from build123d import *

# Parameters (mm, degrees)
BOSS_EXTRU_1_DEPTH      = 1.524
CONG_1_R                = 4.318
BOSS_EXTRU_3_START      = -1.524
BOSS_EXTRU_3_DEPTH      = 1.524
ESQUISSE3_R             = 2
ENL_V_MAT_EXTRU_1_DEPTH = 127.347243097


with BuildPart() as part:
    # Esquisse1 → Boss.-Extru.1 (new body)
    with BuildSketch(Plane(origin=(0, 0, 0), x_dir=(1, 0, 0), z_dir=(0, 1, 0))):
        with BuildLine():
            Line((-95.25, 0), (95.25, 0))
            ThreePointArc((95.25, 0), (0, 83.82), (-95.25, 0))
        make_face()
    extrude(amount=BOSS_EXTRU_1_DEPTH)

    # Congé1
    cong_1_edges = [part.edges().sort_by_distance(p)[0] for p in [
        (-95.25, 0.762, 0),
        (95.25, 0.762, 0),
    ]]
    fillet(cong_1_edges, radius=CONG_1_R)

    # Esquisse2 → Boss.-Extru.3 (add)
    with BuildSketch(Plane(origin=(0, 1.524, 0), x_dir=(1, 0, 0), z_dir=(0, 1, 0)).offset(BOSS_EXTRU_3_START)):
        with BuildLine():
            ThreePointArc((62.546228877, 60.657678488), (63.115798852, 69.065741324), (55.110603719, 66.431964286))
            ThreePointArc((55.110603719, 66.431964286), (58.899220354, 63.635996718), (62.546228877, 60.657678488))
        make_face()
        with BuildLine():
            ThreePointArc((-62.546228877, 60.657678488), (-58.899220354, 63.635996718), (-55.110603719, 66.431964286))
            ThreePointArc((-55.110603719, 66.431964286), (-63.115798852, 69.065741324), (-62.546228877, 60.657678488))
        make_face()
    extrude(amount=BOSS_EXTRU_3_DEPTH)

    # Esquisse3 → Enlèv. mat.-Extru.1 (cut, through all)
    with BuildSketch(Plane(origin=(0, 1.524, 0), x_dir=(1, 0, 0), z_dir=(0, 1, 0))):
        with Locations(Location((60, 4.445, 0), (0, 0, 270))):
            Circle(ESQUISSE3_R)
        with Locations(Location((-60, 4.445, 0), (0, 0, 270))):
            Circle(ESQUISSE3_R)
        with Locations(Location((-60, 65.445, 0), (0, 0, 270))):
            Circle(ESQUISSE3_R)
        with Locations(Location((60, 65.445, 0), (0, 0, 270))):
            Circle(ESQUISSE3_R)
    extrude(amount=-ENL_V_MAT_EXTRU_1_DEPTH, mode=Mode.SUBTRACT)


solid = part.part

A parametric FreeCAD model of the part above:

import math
import FreeCAD as App
import Part
import Sketcher

V = App.Vector
Q = App.Units.Quantity


def edges_at(feature, points):
    """Names of the edges that pass closest to the given points."""
    edges = feature.Shape.Edges
    near = lambda p: min(range(len(edges)), key=lambda i: edges[i].distToShape(Part.Vertex(*p))[0])
    return sorted({f"Edge{near(p) + 1}" for p in points})

doc = App.newDocument("Part")
body = doc.addObject("PartDesign::Body", "Body")

# Sketch on XZ plane
sketch1 = doc.addObject("Sketcher::SketchObject", "Sketch")
body.addObject(sketch1)
sketch1.AttachmentSupport = (doc.XZ_Plane, [""])
sketch1.MapMode = "FlatFace"
sketch1.addGeometry([
    Part.LineSegment(V(-95.25, 0, 0), V(95.25, 0, 0)),
    Part.ArcOfCircle(Part.Circle(V(0, 12.209318, 0), V(0, 0, 1), 96.029318), math.radians(-172.695554), math.radians(-7.304446)),
], False)
sketch1.addConstraint([
    Sketcher.Constraint("Coincident", 0, 1, 1, 1),
    Sketcher.Constraint("Coincident", 1, 2, 0, 2),
    Sketcher.Constraint("Horizontal", 0),
    Sketcher.Constraint("Symmetric", 0, 1, 1, 2, -1, 1),
    Sketcher.Constraint("DistanceX", 0, 1, 0, 2, Q("7.5 in")),
    Sketcher.Constraint("Radius", 1, 96.029318),
])
pad1 = doc.addObject("PartDesign::Pad", "Pad")
body.addObject(pad1)
pad1.Profile = sketch1
pad1.Length = Q("0.06 in")
pad1.Reversed = True
doc.recompute()

fillet = doc.addObject("PartDesign::Fillet", "Fillet")
body.addObject(fillet)
fillet.Base = (pad1, edges_at(pad1, [(-95.25, 0.762, 0), (95.25, 0.762, 0)]))
fillet.Radius = Q("0.17 in")

# Sketch on XZ plane
sketch2 = doc.addObject("Sketcher::SketchObject", "Sketch001")
body.addObject(sketch2)
sketch2.AttachmentSupport = (doc.XZ_Plane, [""])
sketch2.MapMode = "FlatFace"
sketch2.addGeometry([
    Part.ArcOfCircle(Part.Circle(V(60, -65.053485, 0), V(0, 0, 1), 5.08), math.radians(-164.25514), math.radians(59.918845)),
    Part.ArcOfCircle(Part.Circle(V(0, 12.209318, 0), V(0, 0, 1), 96.029318), math.radians(-54.977818), math.radians(-49.358477)),
    Part.ArcOfCircle(Part.Circle(V(0, 12.209318, 0), V(0, 0, 1), 96.029318), math.radians(-130.641523), math.radians(-125.022182)),
    Part.ArcOfCircle(Part.Circle(V(-60, -65.053485, 0), V(0, 0, 1), 5.08), math.radians(120.081155), math.radians(344.25514)),
], False)
sketch2.addConstraint([
    Sketcher.Constraint("Coincident", 0, 1, 1, 1),
    Sketcher.Constraint("Coincident", 1, 2, 0, 2),
    Sketcher.Constraint("Coincident", 2, 1, 3, 1),
    Sketcher.Constraint("Coincident", 3, 2, 2, 2),
    Sketcher.Constraint("Coincident", 2, 3, 1, 3),
    Sketcher.Constraint("Equal", 1, 2),
    Sketcher.Constraint("Equal", 0, 3),
    Sketcher.Constraint("Symmetric", 0, 3, 3, 3, -2),
    Sketcher.Constraint("PointOnObject", 1, 3, -2),
    Sketcher.Constraint("Radius", 0, Q("0.2 in")),
    Sketcher.Constraint("Radius", 1, 96.029318),
    Sketcher.Constraint("DistanceX", -1, 1, 0, 3, 60.0),
    Sketcher.Constraint("DistanceX", -1, 1, 1, 2, 62.546229),
    Sketcher.Constraint("DistanceY", 1, 2, -1, 1, 60.657678),
])
pad2 = doc.addObject("PartDesign::Pad", "Pad001")
body.addObject(pad2)
pad2.Profile = sketch2
pad2.Length = Q("0.06 in")
pad2.Reversed = True

# Sketch on XZ plane
sketch3 = doc.addObject("Sketcher::SketchObject", "Sketch002")
body.addObject(sketch3)
sketch3.AttachmentSupport = (doc.XZ_Plane, [""])
sketch3.MapMode = "FlatFace"
sketch3.AttachmentOffset = App.Placement(V(0, 0, -0.06 * 25.4), App.Rotation())
sketch3.addGeometry([
    Part.Circle(V(60, -4.445, 0), V(0, 0, 1), 2),
    Part.Circle(V(-60, -4.445, 0), V(0, 0, 1), 2),
    Part.Circle(V(-60, -65.445, 0), V(0, 0, 1), 2),
    Part.Circle(V(60, -65.445, 0), V(0, 0, 1), 2),
], False)
sketch3.addConstraint([
    Sketcher.Constraint("Equal", 0, 1),
    Sketcher.Constraint("Equal", 1, 2),
    Sketcher.Constraint("Equal", 2, 3),
    Sketcher.Constraint("Symmetric", 0, 3, 1, 3, -2),
    Sketcher.Constraint("Symmetric", 2, 3, 3, 3, -2),
    Sketcher.Constraint("Vertical", 1, 3, 2, 3),
    Sketcher.Constraint("Diameter", 0, 4.0),
    Sketcher.Constraint("DistanceY", 0, 3, -1, 1, Q("0.175 in")),
    Sketcher.Constraint("DistanceX", -1, 1, 0, 3, 60.0),
    Sketcher.Constraint("DistanceY", 2, 3, -1, 1, 65.445),
])
pocket1 = doc.addObject("PartDesign::Pocket", "Pocket")
body.addObject(pocket1)
pocket1.Profile = sketch3
pocket1.Type = "ThroughAll"
pocket1.Reversed = True

doc.recompute()
